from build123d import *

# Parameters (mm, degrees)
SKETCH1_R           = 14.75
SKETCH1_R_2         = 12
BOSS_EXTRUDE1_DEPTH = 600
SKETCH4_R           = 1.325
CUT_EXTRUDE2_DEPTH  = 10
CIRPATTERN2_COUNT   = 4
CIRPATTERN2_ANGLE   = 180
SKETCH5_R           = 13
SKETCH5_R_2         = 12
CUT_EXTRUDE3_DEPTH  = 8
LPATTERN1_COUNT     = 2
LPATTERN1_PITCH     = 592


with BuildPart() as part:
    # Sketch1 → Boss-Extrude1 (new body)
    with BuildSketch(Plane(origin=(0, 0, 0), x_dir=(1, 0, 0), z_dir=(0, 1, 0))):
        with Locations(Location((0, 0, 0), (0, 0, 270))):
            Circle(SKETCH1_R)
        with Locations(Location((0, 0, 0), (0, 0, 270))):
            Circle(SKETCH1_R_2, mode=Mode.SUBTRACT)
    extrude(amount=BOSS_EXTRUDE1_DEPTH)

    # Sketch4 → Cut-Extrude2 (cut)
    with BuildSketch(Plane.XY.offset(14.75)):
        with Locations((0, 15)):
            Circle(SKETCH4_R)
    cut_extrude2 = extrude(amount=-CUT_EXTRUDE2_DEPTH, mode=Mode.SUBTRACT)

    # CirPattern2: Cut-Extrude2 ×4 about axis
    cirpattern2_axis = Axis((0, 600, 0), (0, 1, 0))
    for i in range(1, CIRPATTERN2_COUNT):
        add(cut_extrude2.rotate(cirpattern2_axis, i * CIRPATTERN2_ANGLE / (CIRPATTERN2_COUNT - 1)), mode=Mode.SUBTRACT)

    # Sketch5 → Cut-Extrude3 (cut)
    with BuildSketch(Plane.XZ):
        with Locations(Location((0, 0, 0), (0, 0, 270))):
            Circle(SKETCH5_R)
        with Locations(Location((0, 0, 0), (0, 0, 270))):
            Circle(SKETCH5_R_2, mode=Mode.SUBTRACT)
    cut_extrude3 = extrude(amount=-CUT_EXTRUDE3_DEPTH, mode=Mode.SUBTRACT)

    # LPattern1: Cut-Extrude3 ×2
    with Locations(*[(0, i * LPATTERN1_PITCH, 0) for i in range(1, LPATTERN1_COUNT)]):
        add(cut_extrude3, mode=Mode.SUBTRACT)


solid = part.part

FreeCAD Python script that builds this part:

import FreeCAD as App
import Part
import Sketcher
Q = App.Units.Quantity

doc = App.newDocument("Part")
body = doc.addObject("PartDesign::Body", "Body")

sketch1 = doc.addObject("Sketcher::SketchObject", "Sketch")
body.addObject(sketch1)
sketch1.AttachmentSupport = (doc.XZ_Plane, [""])
sketch1.MapMode = "FlatFace"
sketch1.addGeometry([
    Part.Circle(App.Vector(0, 0, 0), App.Vector(0, 0, 1), 14.75),
    Part.Circle(App.Vector(0, 0, 0), App.Vector(0, 0, 1), 12),
], False)
sketch1.addConstraint([
    Sketcher.Constraint("Coincident", 0, 3, -1, 1),
    Sketcher.Constraint("Coincident", 1, 3, -1, 1),
    Sketcher.Constraint("Diameter", 1, Q("24 mm")),
    Sketcher.Constraint("Diameter", 0, Q("29.5 mm")),
])
pad1 = doc.addObject("PartDesign::Pad", "Pad")
body.addObject(pad1)
pad1.Profile = sketch1
pad1.Length = 600
pad1.Reversed = True

sketch2 = doc.addObject("Sketcher::SketchObject", "Sketch001")
body.addObject(sketch2)
sketch2.AttachmentSupport = (doc.XY_Plane, [""])
sketch2.MapMode = "FlatFace"
sketch2.AttachmentOffset = App.Placement(App.Vector(0, 0, 14.75), App.Rotation())
sketch2.addGeometry(Part.Circle(App.Vector(0, 15, 0), App.Vector(0, 0, 1), 1.325), False)
sketch2.addConstraint([
    Sketcher.Constraint("PointOnObject", 0, 3, -2),
    Sketcher.Constraint("Diameter", 0, Q("2.65 mm")),
    Sketcher.Constraint("DistanceY", -1, 1, 0, 3, Q("15 mm")),
])
pocket1 = doc.addObject("PartDesign::Pocket", "Pocket")
body.addObject(pocket1)
pocket1.Profile = sketch2
pocket1.Length = 10
doc.recompute()

polarpattern = doc.addObject("PartDesign::PolarPattern", "PolarPattern")
body.addObject(polarpattern)
polarpattern.Originals = [pocket1]
polarpattern.Axis = (doc.Y_Axis, [""])
polarpattern.Angle = 180
polarpattern.Occurrences = 4
body.Tip = polarpattern

sketch3 = doc.addObject("Sketcher::SketchObject", "Sketch002")
body.addObject(sketch3)
sketch3.AttachmentSupport = (doc.XZ_Plane, [""])
sketch3.MapMode = "FlatFace"
sketch3.addGeometry([
    Part.Circle(App.Vector(0, 0, 0), App.Vector(0, 0, 1), 13),
    Part.Circle(App.Vector(0, 0, 0), App.Vector(0, 0, 1), 12),
], False)
sketch3.addConstraint([
    Sketcher.Constraint("Coincident", 0, 3, -1, 1),
    Sketcher.Constraint("Coincident", 1, 3, -1, 1),
    Sketcher.Constraint("Diameter", 0, Q("26 mm")),
    Sketcher.Constraint("Diameter", 1, Q("24 mm")),
])
pocket2 = doc.addObject("PartDesign::Pocket", "Pocket001")
body.addObject(pocket2)
pocket2.Profile = sketch3
pocket2.Length = 8
doc.recompute()

linearpattern = doc.addObject("PartDesign::LinearPattern", "LinearPattern")
body.addObject(linearpattern)
linearpattern.Originals = [pocket2]
linearpattern.Direction = (doc.Y_Axis, [""])
linearpattern.Mode = "offset"
linearpattern.Offset = 592
linearpattern.Occurrences = 2
body.Tip = linearpattern

doc.recompute()
